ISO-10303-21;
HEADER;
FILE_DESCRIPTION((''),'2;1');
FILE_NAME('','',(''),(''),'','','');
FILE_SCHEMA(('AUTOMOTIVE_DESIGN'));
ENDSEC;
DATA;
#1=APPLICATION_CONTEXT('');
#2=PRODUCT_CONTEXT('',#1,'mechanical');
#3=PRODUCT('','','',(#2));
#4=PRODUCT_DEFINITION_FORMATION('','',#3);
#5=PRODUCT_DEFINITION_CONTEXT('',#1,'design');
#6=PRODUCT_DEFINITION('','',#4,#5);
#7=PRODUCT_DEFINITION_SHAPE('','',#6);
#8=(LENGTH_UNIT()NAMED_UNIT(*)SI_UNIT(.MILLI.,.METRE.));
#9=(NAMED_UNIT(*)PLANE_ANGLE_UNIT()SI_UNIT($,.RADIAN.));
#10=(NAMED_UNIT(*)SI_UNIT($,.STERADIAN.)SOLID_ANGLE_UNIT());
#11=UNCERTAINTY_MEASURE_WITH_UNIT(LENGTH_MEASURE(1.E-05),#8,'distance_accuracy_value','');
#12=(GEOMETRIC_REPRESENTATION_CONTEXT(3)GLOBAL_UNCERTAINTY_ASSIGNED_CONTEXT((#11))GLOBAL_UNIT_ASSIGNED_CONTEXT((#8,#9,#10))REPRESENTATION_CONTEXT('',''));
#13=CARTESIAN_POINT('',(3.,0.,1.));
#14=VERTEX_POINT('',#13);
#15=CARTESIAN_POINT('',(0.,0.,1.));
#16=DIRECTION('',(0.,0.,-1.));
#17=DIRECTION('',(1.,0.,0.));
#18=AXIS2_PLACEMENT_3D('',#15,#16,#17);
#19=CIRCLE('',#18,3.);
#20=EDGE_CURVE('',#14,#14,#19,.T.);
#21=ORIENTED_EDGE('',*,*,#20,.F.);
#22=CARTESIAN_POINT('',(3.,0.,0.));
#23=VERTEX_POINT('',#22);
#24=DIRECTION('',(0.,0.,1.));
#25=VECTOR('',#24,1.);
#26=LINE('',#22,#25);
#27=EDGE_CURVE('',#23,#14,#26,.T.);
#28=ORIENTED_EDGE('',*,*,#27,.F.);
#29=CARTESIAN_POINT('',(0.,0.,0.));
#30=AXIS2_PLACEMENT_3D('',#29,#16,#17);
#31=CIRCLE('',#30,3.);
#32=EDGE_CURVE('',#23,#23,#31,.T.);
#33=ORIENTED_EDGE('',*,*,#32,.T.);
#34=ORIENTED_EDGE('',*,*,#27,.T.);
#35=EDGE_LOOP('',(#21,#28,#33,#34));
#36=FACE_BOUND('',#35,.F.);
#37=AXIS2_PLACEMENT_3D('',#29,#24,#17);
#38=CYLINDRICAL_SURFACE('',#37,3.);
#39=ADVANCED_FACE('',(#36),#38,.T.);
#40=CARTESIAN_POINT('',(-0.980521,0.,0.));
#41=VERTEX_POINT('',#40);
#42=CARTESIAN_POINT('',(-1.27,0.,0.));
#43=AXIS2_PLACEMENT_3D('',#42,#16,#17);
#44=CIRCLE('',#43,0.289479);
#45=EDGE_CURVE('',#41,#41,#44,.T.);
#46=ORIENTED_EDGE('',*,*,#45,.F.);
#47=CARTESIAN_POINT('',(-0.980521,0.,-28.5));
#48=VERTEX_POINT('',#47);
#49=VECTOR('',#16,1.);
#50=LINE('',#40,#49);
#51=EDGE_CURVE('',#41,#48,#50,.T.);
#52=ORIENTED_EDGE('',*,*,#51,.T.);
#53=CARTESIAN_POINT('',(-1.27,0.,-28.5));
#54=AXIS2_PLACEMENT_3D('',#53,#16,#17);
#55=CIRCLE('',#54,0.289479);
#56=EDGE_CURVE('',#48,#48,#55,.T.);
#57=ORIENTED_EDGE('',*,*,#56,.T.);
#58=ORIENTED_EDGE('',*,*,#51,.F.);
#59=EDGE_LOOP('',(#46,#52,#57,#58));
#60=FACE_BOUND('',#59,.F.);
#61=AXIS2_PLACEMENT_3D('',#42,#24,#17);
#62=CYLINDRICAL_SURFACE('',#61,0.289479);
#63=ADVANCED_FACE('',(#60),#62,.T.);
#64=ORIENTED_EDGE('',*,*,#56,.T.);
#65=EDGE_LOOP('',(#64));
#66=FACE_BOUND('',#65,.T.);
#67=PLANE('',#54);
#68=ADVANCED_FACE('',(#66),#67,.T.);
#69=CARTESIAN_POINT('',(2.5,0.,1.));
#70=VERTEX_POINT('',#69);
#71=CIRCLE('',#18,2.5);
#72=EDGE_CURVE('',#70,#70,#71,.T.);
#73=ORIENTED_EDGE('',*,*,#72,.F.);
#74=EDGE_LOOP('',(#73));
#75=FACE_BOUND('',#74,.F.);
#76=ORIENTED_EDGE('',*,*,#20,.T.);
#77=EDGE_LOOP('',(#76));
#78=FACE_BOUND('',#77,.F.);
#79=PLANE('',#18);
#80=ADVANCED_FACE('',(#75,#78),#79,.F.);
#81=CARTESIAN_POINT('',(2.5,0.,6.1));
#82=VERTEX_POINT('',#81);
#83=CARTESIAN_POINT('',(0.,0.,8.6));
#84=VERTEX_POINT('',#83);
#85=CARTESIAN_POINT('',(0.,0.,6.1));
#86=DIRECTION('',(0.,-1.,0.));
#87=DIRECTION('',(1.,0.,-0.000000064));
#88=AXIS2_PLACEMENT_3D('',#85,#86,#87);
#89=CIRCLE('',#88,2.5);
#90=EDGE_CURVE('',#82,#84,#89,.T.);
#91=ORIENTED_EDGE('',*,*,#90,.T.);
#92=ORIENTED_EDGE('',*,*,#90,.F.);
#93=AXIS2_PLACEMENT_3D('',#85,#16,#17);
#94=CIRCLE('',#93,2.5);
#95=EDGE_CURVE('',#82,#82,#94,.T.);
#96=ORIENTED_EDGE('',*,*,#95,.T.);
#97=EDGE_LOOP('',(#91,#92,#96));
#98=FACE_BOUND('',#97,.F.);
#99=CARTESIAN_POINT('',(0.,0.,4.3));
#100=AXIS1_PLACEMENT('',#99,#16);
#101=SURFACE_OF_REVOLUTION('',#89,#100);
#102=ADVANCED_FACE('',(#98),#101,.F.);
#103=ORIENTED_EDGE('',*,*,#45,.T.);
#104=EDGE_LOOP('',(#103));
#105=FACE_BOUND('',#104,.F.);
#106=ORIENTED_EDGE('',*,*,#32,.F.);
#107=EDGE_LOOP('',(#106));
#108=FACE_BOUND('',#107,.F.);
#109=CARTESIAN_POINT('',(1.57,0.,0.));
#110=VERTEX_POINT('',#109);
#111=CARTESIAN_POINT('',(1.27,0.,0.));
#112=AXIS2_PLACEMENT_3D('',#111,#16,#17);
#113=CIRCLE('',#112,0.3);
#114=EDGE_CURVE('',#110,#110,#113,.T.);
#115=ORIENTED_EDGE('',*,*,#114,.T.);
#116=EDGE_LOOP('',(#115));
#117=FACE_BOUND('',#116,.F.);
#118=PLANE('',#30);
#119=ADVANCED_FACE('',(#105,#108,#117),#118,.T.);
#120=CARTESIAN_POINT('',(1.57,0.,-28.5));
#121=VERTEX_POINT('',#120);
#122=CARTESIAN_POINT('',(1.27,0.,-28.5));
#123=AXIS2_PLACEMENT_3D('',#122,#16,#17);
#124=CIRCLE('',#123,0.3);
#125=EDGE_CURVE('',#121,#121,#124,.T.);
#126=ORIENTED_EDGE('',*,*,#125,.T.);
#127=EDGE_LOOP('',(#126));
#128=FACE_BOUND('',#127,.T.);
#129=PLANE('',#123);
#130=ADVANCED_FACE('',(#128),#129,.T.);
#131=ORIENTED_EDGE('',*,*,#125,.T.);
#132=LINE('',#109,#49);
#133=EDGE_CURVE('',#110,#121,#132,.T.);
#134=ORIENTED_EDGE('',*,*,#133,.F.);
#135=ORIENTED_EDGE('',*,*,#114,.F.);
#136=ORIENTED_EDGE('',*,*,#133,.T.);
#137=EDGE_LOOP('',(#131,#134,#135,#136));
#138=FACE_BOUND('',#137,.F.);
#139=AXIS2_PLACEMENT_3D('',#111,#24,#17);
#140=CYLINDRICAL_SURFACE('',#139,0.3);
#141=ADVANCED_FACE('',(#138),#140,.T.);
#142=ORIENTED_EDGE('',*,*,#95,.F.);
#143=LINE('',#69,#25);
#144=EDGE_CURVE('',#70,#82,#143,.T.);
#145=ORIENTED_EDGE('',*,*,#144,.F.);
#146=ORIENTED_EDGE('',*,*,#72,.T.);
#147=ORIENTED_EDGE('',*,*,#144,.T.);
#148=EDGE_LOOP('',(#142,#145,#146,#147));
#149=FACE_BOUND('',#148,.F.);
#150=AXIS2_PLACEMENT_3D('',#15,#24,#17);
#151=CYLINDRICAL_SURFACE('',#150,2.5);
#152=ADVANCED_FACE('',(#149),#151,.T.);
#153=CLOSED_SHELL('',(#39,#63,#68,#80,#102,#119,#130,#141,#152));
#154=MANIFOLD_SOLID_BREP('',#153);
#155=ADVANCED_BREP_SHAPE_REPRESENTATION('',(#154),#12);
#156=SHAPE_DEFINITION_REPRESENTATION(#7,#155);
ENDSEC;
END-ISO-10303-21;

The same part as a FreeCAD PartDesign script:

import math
import FreeCAD as App
import Part
import Sketcher

doc = App.newDocument("Part")
body = doc.addObject("PartDesign::Body", "Body")

sketch1 = body.newObject("Sketcher::SketchObject", "Sketch")
sketch1.AttachmentSupport = (doc.getObject("XZ_Plane"), [""])
sketch1.MapMode = "FlatFace"
sketch1.addGeometry([
    Part.LineSegment(App.Vector(0, 8.6, 0), App.Vector(0, 0, 0)),
    Part.LineSegment(App.Vector(0, 0, 0), App.Vector(3, 0, 0)),
    Part.LineSegment(App.Vector(3, 0, 0), App.Vector(3, 1, 0)),
    Part.LineSegment(App.Vector(3, 1, 0), App.Vector(2.5, 1, 0)),
    Part.LineSegment(App.Vector(2.5, 1, 0), App.Vector(2.5, 6.1, 0)),
    Part.ArcOfCircle(Part.Circle(App.Vector(0, 6.1, 0), App.Vector(0, 0, 1), 2.5), math.radians(-0.000004), math.radians(90.000004)),
], False)
sketch1.addConstraint([
    Sketcher.Constraint("Coincident", 0, 2, 1, 1),
    Sketcher.Constraint("Coincident", 1, 2, 2, 1),
    Sketcher.Constraint("Coincident", 2, 2, 3, 1),
    Sketcher.Constraint("Coincident", 3, 2, 4, 1),
    Sketcher.Constraint("Tangent", 4, 2, 5, 1),
    Sketcher.Constraint("Coincident", 5, 2, 0, 1),
    Sketcher.Constraint("Vertical", 0),
    Sketcher.Constraint("Horizontal", 1),
    Sketcher.Constraint("Vertical", 2),
    Sketcher.Constraint("Horizontal", 3),
    Sketcher.Constraint("Vertical", 4),
    Sketcher.Constraint("Coincident", 0, 2, -1, 1),
    Sketcher.Constraint("PointOnObject", 5, 3, -2),
    Sketcher.Constraint("Radius", 5, 2.5),
    Sketcher.Constraint("DistanceX", 1, 1, 1, 2, 3.0),
    Sketcher.Constraint("DistanceY", 2, 1, 2, 2, 1.0),
    Sketcher.Constraint("DistanceY", 0, 2, 0, 1, 8.6),
])
revolution = body.newObject("PartDesign::Revolution", "Revolution")
revolution.Profile = sketch1
revolution.ReferenceAxis = (sketch1, ["V_Axis"])
revolution.Angle = 360

sketch2 = body.newObject("Sketcher::SketchObject", "Sketch001")
sketch2.AttachmentSupport = (doc.getObject("XY_Plane"), [""])
sketch2.MapMode = "FlatFace"
sketch2.addGeometry([
    Part.Circle(App.Vector(1.27, 0, 0), App.Vector(0, 0, 1), 0.3),
    Part.Circle(App.Vector(-1.27, 0, 0), App.Vector(0, 0, 1), 0.289479),
], False)
sketch2.addConstraint([
    Sketcher.Constraint("Symmetric", 0, 3, 1, 3, -1, 1),
    Sketcher.Constraint("PointOnObject", 0, 3, -1),
    Sketcher.Constraint("Diameter", 0, 0.6),
    Sketcher.Constraint("DistanceX", -1, 1, 0, 3, 1.27),
    Sketcher.Constraint("Diameter", 1, 0.578958),
])
pad1 = body.newObject("PartDesign::Pad", "Pad")
pad1.Profile = sketch2
pad1.Length = 28.5
pad1.Reversed = True

doc.recompute()
